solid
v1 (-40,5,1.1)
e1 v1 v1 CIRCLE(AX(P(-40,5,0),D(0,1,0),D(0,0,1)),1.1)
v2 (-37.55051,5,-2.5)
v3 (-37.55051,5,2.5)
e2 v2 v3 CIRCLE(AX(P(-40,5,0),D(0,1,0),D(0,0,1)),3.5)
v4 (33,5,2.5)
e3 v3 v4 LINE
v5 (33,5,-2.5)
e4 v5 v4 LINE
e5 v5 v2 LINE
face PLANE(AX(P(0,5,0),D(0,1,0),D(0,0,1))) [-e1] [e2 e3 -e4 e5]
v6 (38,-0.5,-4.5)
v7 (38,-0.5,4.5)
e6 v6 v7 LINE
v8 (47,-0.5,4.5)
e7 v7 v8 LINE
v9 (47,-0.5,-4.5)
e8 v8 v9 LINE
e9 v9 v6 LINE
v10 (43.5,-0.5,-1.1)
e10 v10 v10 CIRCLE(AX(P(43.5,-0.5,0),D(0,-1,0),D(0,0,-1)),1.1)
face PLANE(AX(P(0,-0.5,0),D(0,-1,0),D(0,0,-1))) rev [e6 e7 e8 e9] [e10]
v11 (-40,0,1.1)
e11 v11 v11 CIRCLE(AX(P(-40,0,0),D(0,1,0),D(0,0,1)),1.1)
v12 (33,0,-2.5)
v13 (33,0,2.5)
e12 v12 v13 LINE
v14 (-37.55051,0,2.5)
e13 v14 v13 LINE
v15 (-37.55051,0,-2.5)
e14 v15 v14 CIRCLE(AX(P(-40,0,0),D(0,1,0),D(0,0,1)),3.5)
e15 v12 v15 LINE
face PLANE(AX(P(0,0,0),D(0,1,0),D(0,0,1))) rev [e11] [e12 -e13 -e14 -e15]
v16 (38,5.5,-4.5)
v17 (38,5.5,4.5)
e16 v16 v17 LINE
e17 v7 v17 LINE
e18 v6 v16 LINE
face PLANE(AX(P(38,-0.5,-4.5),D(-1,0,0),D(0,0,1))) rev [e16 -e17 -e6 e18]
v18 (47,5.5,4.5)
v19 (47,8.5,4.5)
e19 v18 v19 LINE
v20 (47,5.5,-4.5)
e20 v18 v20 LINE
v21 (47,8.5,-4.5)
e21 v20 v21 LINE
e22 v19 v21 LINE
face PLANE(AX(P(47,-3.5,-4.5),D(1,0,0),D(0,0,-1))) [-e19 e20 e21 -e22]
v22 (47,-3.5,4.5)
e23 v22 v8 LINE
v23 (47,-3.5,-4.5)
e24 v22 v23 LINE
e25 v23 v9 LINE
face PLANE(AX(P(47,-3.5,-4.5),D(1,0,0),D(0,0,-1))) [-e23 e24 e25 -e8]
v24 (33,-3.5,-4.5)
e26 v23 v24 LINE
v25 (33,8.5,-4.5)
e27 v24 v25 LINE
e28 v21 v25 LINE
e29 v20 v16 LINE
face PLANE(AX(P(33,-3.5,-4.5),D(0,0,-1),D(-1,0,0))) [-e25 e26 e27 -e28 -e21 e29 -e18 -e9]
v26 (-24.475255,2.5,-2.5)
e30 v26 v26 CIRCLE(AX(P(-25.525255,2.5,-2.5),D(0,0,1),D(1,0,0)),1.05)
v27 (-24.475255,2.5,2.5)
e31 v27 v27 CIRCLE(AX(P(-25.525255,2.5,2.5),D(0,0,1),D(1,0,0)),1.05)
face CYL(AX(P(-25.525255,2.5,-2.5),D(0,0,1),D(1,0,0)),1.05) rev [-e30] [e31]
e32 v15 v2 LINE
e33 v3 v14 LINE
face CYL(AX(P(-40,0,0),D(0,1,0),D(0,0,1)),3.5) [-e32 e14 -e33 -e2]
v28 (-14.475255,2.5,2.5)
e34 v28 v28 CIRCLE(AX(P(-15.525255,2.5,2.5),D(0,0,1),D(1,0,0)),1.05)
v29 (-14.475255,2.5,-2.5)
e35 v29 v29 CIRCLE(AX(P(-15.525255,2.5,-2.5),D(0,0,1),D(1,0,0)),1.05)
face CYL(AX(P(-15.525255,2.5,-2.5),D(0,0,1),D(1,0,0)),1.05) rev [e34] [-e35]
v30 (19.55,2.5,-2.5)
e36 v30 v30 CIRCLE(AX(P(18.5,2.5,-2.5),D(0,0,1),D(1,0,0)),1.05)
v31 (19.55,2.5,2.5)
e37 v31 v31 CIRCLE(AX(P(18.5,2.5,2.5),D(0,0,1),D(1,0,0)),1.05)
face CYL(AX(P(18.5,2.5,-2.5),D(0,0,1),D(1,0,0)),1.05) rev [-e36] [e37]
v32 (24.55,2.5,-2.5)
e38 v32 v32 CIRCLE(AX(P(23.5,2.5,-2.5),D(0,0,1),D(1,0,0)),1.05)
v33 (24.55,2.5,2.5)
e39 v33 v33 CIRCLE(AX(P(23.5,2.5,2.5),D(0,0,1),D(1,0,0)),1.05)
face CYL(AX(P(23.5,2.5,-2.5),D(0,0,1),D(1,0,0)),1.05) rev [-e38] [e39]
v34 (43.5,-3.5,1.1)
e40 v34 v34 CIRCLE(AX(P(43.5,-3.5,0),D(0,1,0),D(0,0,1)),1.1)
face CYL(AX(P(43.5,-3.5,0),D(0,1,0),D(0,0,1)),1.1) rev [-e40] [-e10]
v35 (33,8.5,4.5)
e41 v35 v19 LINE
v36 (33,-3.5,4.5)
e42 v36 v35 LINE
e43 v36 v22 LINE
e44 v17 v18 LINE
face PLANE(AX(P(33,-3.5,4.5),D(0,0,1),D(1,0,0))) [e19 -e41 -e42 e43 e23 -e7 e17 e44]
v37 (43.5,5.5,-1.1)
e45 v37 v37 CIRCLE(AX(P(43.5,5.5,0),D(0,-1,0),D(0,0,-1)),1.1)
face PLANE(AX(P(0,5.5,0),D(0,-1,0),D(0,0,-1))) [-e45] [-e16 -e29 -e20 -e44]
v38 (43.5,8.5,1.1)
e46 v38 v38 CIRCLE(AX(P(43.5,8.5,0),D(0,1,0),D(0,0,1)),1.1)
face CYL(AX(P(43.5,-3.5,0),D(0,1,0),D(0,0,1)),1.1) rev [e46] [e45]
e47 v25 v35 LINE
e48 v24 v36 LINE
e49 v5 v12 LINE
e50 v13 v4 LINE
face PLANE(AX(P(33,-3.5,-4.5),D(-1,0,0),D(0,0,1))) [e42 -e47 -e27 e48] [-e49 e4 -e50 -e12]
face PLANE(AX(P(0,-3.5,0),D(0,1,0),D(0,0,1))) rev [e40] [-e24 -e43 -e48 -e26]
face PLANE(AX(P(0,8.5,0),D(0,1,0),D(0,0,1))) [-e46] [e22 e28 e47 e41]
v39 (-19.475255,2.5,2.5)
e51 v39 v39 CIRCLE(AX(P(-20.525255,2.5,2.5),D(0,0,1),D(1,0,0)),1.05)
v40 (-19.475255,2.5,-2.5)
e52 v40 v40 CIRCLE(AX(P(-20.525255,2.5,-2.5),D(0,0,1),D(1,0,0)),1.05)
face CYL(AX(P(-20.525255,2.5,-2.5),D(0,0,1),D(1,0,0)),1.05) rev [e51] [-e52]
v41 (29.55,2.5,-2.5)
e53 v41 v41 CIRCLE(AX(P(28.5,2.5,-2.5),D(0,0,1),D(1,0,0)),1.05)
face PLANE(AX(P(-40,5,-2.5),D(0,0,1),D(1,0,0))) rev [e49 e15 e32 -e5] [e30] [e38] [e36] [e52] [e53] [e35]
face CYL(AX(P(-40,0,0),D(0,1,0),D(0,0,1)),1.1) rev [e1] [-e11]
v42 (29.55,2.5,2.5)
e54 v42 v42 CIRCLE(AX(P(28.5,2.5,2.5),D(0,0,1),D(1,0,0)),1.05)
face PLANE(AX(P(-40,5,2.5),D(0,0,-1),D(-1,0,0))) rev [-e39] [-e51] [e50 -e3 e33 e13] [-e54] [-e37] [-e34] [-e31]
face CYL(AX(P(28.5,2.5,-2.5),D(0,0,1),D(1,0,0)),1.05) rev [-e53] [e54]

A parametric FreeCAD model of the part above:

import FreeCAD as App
import Part
import Sketcher
from FreeCAD import Vector
Q = App.Units.Quantity


def add_polygon(sketch, points):
    """Adds a closed chain of lines whose ends are joined by coincident constraints."""
    first, n = sketch.GeometryCount, len(points)
    for a, b in zip(points, points[1:] + points[:1]):
        sketch.addGeometry(Part.LineSegment(App.Vector(*a, 0), App.Vector(*b, 0)), False)
    for i in range(n):
        sketch.addConstraint(Sketcher.Constraint("Coincident", first + i, 2, first + (i + 1) % n, 1))

doc = App.newDocument("Part")
params = doc.addObject("Spreadsheet::Sheet", "Params")
for row, (alias, value) in enumerate([
    ("sketch1_width", "80 mm"),
    ("sketch1_height", "5 mm"),
    ("pad1_length", "5 mm"),
    ("sketch2_width", "14 mm"),
    ("sketch2_height", "9 mm"),
    ("pad2_length", "12 mm"),
    ("sketch3_width", "9 mm"),
    ("pocket1_length", "6 mm"),
    ("sketch4_diameter", "2.2 mm"),
    ("pocket2_length", "12 mm"),
    ("sketch5_diameter", "7 mm"),
    ("pad3_length", "5 mm"),
    ("sketch6_diameter", "2.2 mm"),
    ("pocket3_length", "5 mm"),
    ("sketch7_diameter", "2.1 mm"),
    ("pocket4_length", "5 mm"),
], start=1):
    params.set(f"A{row}", alias)
    params.set(f"B{row}", "=" + value)
    params.setAlias(f"B{row}", alias)

body = doc.addObject("PartDesign::Body", "Body")

sketch1 = body.newObject("Sketcher::SketchObject", "Sketch")
sketch1.AttachmentSupport = (doc.getObject("XZ_Plane"), [""])
sketch1.MapMode = "FlatFace"
add_polygon(sketch1, [(-40, -2), (-40, 2), (40, 2), (40, -2)])
sketch1.addConstraint(Sketcher.Constraint("Vertical", 0))
sketch1.addConstraint(Sketcher.Constraint("Horizontal", 1))
sketch1.addConstraint(Sketcher.Constraint("Vertical", 2))
sketch1.addConstraint(Sketcher.Constraint("Horizontal", 3))
sketch1.addConstraint(Sketcher.Constraint("Symmetric", 0, 2, 2, 2, -1, 1))
sketch1.addConstraint(Sketcher.Constraint("DistanceX", 1, 1, 1, 2, Q("80 mm")))
sketch1.addConstraint(Sketcher.Constraint("DistanceY", 0, 1, 0, 2, Q("5 mm")))
sketch1.setExpression("Constraints[9]", "Params.sketch1_width")
sketch1.setExpression("Constraints[10]", "Params.sketch1_height")
pad1 = body.newObject("PartDesign::Pad", "Pad")
pad1.Profile = sketch1
pad1.setExpression("Length", "Params.pad1_length")
pad1.Reversed = True

sketch2 = body.newObject("Sketcher::SketchObject", "Sketch001")
sketch2.AttachmentSupport = (doc.getObject("XZ_Plane"), [""])
sketch2.MapMode = "FlatFace"
sketch2.AttachmentOffset = App.Placement(Vector(0, 0, -8.5), App.Rotation())
add_polygon(sketch2, [(33, -4), (33, 4), (47, 4), (47, -4)])
sketch2.addConstraint(Sketcher.Constraint("Vertical", 0))
sketch2.addConstraint(Sketcher.Constraint("Horizontal", 1))
sketch2.addConstraint(Sketcher.Constraint("Vertical", 2))
sketch2.addConstraint(Sketcher.Constraint("Horizontal", 3))
sketch2.addConstraint(Sketcher.Constraint("DistanceX", 1, 1, 1, 2, Q("14 mm")))
sketch2.addConstraint(Sketcher.Constraint("DistanceY", 0, 1, 0, 2, Q("9 mm")))
sketch2.addConstraint(Sketcher.Constraint("DistanceX", -1, 1, 0, 2, Q("33 mm")))
sketch2.addConstraint(Sketcher.Constraint("DistanceY", -1, 1, 0, 2, Q("4.5 mm")))
sketch2.setExpression("Constraints[8]", "Params.sketch2_width")
sketch2.setExpression("Constraints[9]", "Params.sketch2_height")
pad2 = body.newObject("PartDesign::Pad", "Pad001")
pad2.Profile = sketch2
pad2.setExpression("Length", "Params.pad2_length")

sketch3 = body.newObject("Sketcher::SketchObject", "Sketch002")
sketch3.AttachmentSupport = (doc.getObject("XZ_Plane"), [""])
sketch3.MapMode = "FlatFace"
sketch3.AttachmentOffset = App.Placement(Vector(0, 0, -5.5), App.Rotation())
add_polygon(sketch3, [(38, -4), (38, 4), (47, 4), (47, -4)])
sketch3.addConstraint(Sketcher.Constraint("Vertical", 0))
sketch3.addConstraint(Sketcher.Constraint("Horizontal", 1))
sketch3.addConstraint(Sketcher.Constraint("Vertical", 2))
sketch3.addConstraint(Sketcher.Constraint("Horizontal", 3))
sketch3.addConstraint(Sketcher.Constraint("Equal", 3, 0))
sketch3.addConstraint(Sketcher.Constraint("DistanceX", 1, 1, 1, 2, Q("9 mm")))
sketch3.addConstraint(Sketcher.Constraint("DistanceX", -1, 1, 0, 2, Q("38 mm")))
sketch3.addConstraint(Sketcher.Constraint("DistanceY", -1, 1, 0, 2, Q("4.5 mm")))
sketch3.setExpression("Constraints[9]", "Params.sketch3_width")
pocket1 = body.newObject("PartDesign::Pocket", "Pocket")
pocket1.Profile = sketch3
pocket1.setExpression("Length", "Params.pocket1_length")
pocket1.Reversed = True

sketch4 = body.newObject("Sketcher::SketchObject", "Sketch003")
sketch4.AttachmentSupport = (doc.getObject("XZ_Plane"), [""])
sketch4.MapMode = "FlatFace"
sketch4.AttachmentOffset = App.Placement(Vector(0, 0, -8.5), App.Rotation())
sketch4.addGeometry(Part.Circle(Vector(43.5, 0, 0), Vector(0, 0, 1), 1.1), False)
sketch4.addConstraint(Sketcher.Constraint("PointOnObject", 0, 3, -1))
sketch4.addConstraint(Sketcher.Constraint("Diameter", 0, Q("2.2 mm")))
sketch4.addConstraint(Sketcher.Constraint("DistanceX", -1, 1, 0, 3, Q("43.5 mm")))
sketch4.setExpression("Constraints[1]", "Params.sketch4_diameter")
pocket2 = body.newObject("PartDesign::Pocket", "Pocket001")
pocket2.Profile = sketch4
pocket2.setExpression("Length", "Params.pocket2_length")
pocket2.Reversed = True

sketch5 = body.newObject("Sketcher::SketchObject", "Sketch004")
sketch5.AttachmentSupport = (doc.getObject("XZ_Plane"), [""])
sketch5.MapMode = "FlatFace"
sketch5.AttachmentOffset = App.Placement(Vector(0, 0, -5), App.Rotation())
sketch5.addGeometry(Part.Circle(Vector(-40, 0, 0), Vector(0, 0, 1), 3.5), False)
sketch5.addConstraint(Sketcher.Constraint("PointOnObject", 0, 3, -1))
sketch5.addConstraint(Sketcher.Constraint("Diameter", 0, Q("7 mm")))
sketch5.addConstraint(Sketcher.Constraint("DistanceX", 0, 3, -1, 1, Q("40 mm")))
sketch5.setExpression("Constraints[1]", "Params.sketch5_diameter")
pad3 = body.newObject("PartDesign::Pad", "Pad002")
pad3.Profile = sketch5
pad3.setExpression("Length", "Params.pad3_length")

sketch6 = body.newObject("Sketcher::SketchObject", "Sketch005")
sketch6.AttachmentSupport = (doc.getObject("XZ_Plane"), [""])
sketch6.MapMode = "FlatFace"
sketch6.AttachmentOffset = App.Placement(Vector(0, 0, -5), App.Rotation())
sketch6.addGeometry(Part.Circle(Vector(-40, 0, 0), Vector(0, 0, 1), 1.1), False)
sketch6.addConstraint(Sketcher.Constraint("PointOnObject", 0, 3, -1))
sketch6.addConstraint(Sketcher.Constraint("Diameter", 0, Q("2.2 mm")))
sketch6.addConstraint(Sketcher.Constraint("DistanceX", 0, 3, -1, 1, Q("40 mm")))
sketch6.setExpression("Constraints[1]", "Params.sketch6_diameter")
pocket3 = body.newObject("PartDesign::Pocket", "Pocket002")
pocket3.Profile = sketch6
pocket3.setExpression("Length", "Params.pocket3_length")
pocket3.Reversed = True

sketch7 = body.newObject("Sketcher::SketchObject", "Sketch006")
sketch7.AttachmentSupport = (doc.getObject("XY_Plane"), [""])
sketch7.MapMode = "FlatFace"
sketch7.AttachmentOffset = App.Placement(Vector(0, 0, 2.5), App.Rotation())
sketch7.addGeometry(Part.Circle(Vector(-20.5, 2.5, 0), Vector(0, 0, 1), 1.1), False)
sketch7.addGeometry(Part.Circle(Vector(23.5, 2.5, 0), Vector(0, 0, 1), 1.1), False)
sketch7.addGeometry(Part.Circle(Vector(-25.5, 2.5, 0), Vector(0, 0, 1), 1.1), False)
sketch7.addGeometry(Part.Circle(Vector(-15.5, 2.5, 0), Vector(0, 0, 1), 1.1), False)
sketch7.addGeometry(Part.Circle(Vector(18.5, 2.5, 0), Vector(0, 0, 1), 1.1), False)
sketch7.addGeometry(Part.Circle(Vector(28.5, 2.5, 0), Vector(0, 0, 1), 1.1), False)
sketch7.addConstraint(Sketcher.Constraint("Equal", 0, 1))
sketch7.addConstraint(Sketcher.Constraint("Equal", 1, 2))
sketch7.addConstraint(Sketcher.Constraint("Equal", 2, 3))
sketch7.addConstraint(Sketcher.Constraint("Equal", 3, 4))
sketch7.addConstraint(Sketcher.Constraint("Equal", 4, 5))
sketch7.addConstraint(Sketcher.Constraint("Horizontal", 0, 3, 1, 3))
sketch7.addConstraint(Sketcher.Constraint("Horizontal", 1, 3, 2, 3))
sketch7.addConstraint(Sketcher.Constraint("Horizontal", 2, 3, 3, 3))
sketch7.addConstraint(Sketcher.Constraint("Horizontal", 3, 3, 4, 3))
sketch7.addConstraint(Sketcher.Constraint("Horizontal", 4, 3, 5, 3))
sketch7.addConstraint(Sketcher.Constraint("Diameter", 0, Q("2.1 mm")))
sketch7.addConstraint(Sketcher.Constraint("DistanceX", 2, 3, 0, 3, Q("5 mm")))
sketch7.addConstraint(Sketcher.Constraint("DistanceX", 0, 3, 3, 3, Q("5 mm")))
sketch7.addConstraint(Sketcher.Constraint("DistanceX", 4, 3, 1, 3, Q("5 mm")))
sketch7.addConstraint(Sketcher.Constraint("DistanceX", 1, 3, 5, 3, Q("5 mm")))
sketch7.addConstraint(Sketcher.Constraint("DistanceY", -1, 1, 0, 3, Q("2.5 mm")))
sketch7.addConstraint(Sketcher.Constraint("DistanceX", -1, 1, 1, 3, Q("23.5 mm")))
sketch7.addConstraint(Sketcher.Constraint("DistanceX", 0, 3, -1, 1, Q("20.525255 mm")))
sketch7.setExpression("Constraints[10]", "Params.sketch7_diameter")
pocket4 = body.newObject("PartDesign::Pocket", "Pocket003")
pocket4.Profile = sketch7
pocket4.setExpression("Length", "Params.pocket4_length")

doc.recompute()
